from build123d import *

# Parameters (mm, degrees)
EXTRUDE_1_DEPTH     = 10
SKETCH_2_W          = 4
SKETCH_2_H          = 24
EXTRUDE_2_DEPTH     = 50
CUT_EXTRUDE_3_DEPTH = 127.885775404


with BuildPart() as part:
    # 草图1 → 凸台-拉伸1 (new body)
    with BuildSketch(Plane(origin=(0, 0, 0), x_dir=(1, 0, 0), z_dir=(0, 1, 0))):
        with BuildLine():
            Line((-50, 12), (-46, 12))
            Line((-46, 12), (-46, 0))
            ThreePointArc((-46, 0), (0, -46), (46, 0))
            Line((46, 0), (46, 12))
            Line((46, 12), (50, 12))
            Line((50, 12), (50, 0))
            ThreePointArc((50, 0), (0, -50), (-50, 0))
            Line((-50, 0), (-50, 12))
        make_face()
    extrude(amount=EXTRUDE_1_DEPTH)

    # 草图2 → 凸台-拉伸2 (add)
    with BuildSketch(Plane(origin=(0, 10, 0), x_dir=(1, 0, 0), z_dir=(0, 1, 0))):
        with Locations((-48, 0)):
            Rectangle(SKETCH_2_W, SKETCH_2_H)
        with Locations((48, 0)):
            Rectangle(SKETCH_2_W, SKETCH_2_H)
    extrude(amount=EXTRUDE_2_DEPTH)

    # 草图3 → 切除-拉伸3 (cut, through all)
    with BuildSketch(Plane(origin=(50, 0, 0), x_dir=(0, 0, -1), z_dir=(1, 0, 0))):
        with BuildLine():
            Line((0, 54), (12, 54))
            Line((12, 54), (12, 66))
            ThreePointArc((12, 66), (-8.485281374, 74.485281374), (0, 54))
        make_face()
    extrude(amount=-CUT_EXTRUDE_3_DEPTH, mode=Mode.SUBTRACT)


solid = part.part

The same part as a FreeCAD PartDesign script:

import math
import FreeCAD as App
import Part
import Sketcher
from FreeCAD import Vector

doc = App.newDocument("Part")
params = doc.addObject("Spreadsheet::Sheet", "Params")
for row, (alias, value) in enumerate([
    ("sketch1_radius", "50 mm"),
    ("sketch1_radius2", "46 mm"),
    ("sketch1_height", "12 mm"),
    ("pad1_length", "10 mm"),
    ("sketch2_width", "4 mm"),
    ("sketch2_height", "24 mm"),
    ("pad2_length", "50 mm"),
    ("sketch3_radius", "12 mm"),
], start=1):
    params.set(f"A{row}", alias)
    params.set(f"B{row}", "=" + value)
    params.setAlias(f"B{row}", alias)

body = doc.addObject("PartDesign::Body", "Body")

sketch1 = body.newObject("Sketcher::SketchObject", "Sketch")
sketch1.AttachmentSupport = (doc.getObject("XZ_Plane"), [""])
sketch1.MapMode = "FlatFace"
sketch1.addGeometry([
    Part.LineSegment(Vector(-46, -12, 0), Vector(-50, -12, 0)),
    Part.LineSegment(Vector(-50, -12, 0), Vector(-50, 0, 0)),
    Part.ArcOfCircle(Part.Circle(Vector(0, 0, 0), Vector(0, 0, 1), 50), math.radians(0), math.radians(180)),
    Part.LineSegment(Vector(50, 0, 0), Vector(50, -12, 0)),
    Part.LineSegment(Vector(50, -12, 0), Vector(46, -12, 0)),
    Part.LineSegment(Vector(46, -12, 0), Vector(46, 0, 0)),
    Part.ArcOfCircle(Part.Circle(Vector(0, 0, 0), Vector(0, 0, 1), 46), math.radians(0), math.radians(180)),
    Part.LineSegment(Vector(-46, 0, 0), Vector(-46, -12, 0)),
], False)
sketch1.addConstraint([
    Sketcher.Constraint("Coincident", 0, 2, 1, 1),
    Sketcher.Constraint("Tangent", 1, 2, 2, 2),
    Sketcher.Constraint("Tangent", 2, 1, 3, 1),
    Sketcher.Constraint("Coincident", 3, 2, 4, 1),
    Sketcher.Constraint("Coincident", 4, 2, 5, 1),
    Sketcher.Constraint("Tangent", 5, 2, 6, 1),
    Sketcher.Constraint("Tangent", 6, 2, 7, 1),
    Sketcher.Constraint("Coincident", 7, 2, 0, 1),
    Sketcher.Constraint("Horizontal", 0),
    Sketcher.Constraint("Vertical", 1),
    Sketcher.Constraint("Vertical", 3),
    Sketcher.Constraint("Horizontal", 4),
    Sketcher.Constraint("Vertical", 5),
    Sketcher.Constraint("Vertical", 7),
    Sketcher.Constraint("Coincident", 2, 3, -1, 1),
    Sketcher.Constraint("Coincident", 6, 3, -1, 1),
    Sketcher.Constraint("Horizontal", 0, 2, 3, 2),
    Sketcher.Constraint("Radius", 2, 50.0),
    Sketcher.Constraint("Radius", 6, 46.0),
    Sketcher.Constraint("DistanceY", 1, 1, 1, 2, 12.0),
])
sketch1.setExpression("Constraints[17]", "Params.sketch1_radius")
sketch1.setExpression("Constraints[18]", "Params.sketch1_radius2")
sketch1.setExpression("Constraints[19]", "Params.sketch1_height")
pad1 = body.newObject("PartDesign::Pad", "Pad")
pad1.Profile = sketch1
pad1.setExpression("Length", "Params.pad1_length")
pad1.Reversed = True

sketch2 = body.newObject("Sketcher::SketchObject", "Sketch001")
sketch2.AttachmentSupport = (doc.getObject("XZ_Plane"), [""])
sketch2.MapMode = "FlatFace"
sketch2.AttachmentOffset = App.Placement(Vector(0, 0, -10), App.Rotation())
sketch2.addGeometry([
    Part.LineSegment(Vector(-50, -12, 0), Vector(-50, 12, 0)),
    Part.LineSegment(Vector(-50, 12, 0), Vector(-46, 12, 0)),
    Part.LineSegment(Vector(-46, 12, 0), Vector(-46, -12, 0)),
    Part.LineSegment(Vector(-46, -12, 0), Vector(-50, -12, 0)),
    Part.LineSegment(Vector(46, -12, 0), Vector(46, 12, 0)),
    Part.LineSegment(Vector(46, 12, 0), Vector(50, 12, 0)),
    Part.LineSegment(Vector(50, 12, 0), Vector(50, -12, 0)),
    Part.LineSegment(Vector(50, -12, 0), Vector(46, -12, 0)),
], False)
sketch2.addConstraint([
    Sketcher.Constraint("Coincident", 0, 2, 1, 1),
    Sketcher.Constraint("Coincident", 1, 2, 2, 1),
    Sketcher.Constraint("Coincident", 2, 2, 3, 1),
    Sketcher.Constraint("Coincident", 3, 2, 0, 1),
    Sketcher.Constraint("Coincident", 4, 2, 5, 1),
    Sketcher.Constraint("Coincident", 5, 2, 6, 1),
    Sketcher.Constraint("Coincident", 6, 2, 7, 1),
    Sketcher.Constraint("Coincident", 7, 2, 4, 1),
    Sketcher.Constraint("Vertical", 0),
    Sketcher.Constraint("Horizontal", 1),
    Sketcher.Constraint("Vertical", 2),
    Sketcher.Constraint("Horizontal", 3),
    Sketcher.Constraint("Vertical", 4),
    Sketcher.Constraint("Horizontal", 5),
    Sketcher.Constraint("Vertical", 6),
    Sketcher.Constraint("Horizontal", 7),
    Sketcher.Constraint("Symmetric", 2, 2, 4, 2, -1, 1),
    Sketcher.Constraint("Symmetric", 0, 2, 6, 2, -1, 1),
    Sketcher.Constraint("Horizontal", 1, 2, 4, 2),
    Sketcher.Constraint("DistanceX", 1, 1, 1, 2, 4.0),
    Sketcher.Constraint("DistanceY", 0, 1, 0, 2, 24.0),
    Sketcher.Constraint("DistanceX", 0, 2, -1, 1, 50.0),
])
sketch2.setExpression("Constraints[19]", "Params.sketch2_width")
sketch2.setExpression("Constraints[20]", "Params.sketch2_height")
pad2 = body.newObject("PartDesign::Pad", "Pad001")
pad2.Profile = sketch2
pad2.setExpression("Length", "Params.pad2_length")
pad2.Reversed = True

sketch3 = body.newObject("Sketcher::SketchObject", "Sketch002")
sketch3.AttachmentSupport = (doc.getObject("YZ_Plane"), [""])
sketch3.MapMode = "FlatFace"
sketch3.AttachmentOffset = App.Placement(Vector(0, 0, 50), App.Rotation())
sketch3.addGeometry([
    Part.LineSegment(Vector(54, 0, 0), Vector(54, -12, 0)),
    Part.LineSegment(Vector(54, -12, 0), Vector(66, -12, 0)),
    Part.ArcOfCircle(Part.Circle(Vector(66, 0, 0), Vector(0, 0, 1), 12), math.radians(-90), math.radians(180)),
], False)
sketch3.addConstraint([
    Sketcher.Constraint("Coincident", 0, 2, 1, 1),
    Sketcher.Constraint("Tangent", 1, 2, 2, 1),
    Sketcher.Constraint("Tangent", 2, 2, 0, 1),
    Sketcher.Constraint("Vertical", 0),
    Sketcher.Constraint("Horizontal", 1),
    Sketcher.Constraint("PointOnObject", 2, 3, -1),
    Sketcher.Constraint("Radius", 2, 12.0),
    Sketcher.Constraint("DistanceX", -1, 1, 2, 3, 66.0),
])
sketch3.setExpression("Constraints[6]", "Params.sketch3_radius")
pocket1 = body.newObject("PartDesign::Pocket", "Pocket")
pocket1.Profile = sketch3
pocket1.Type = "ThroughAll"

doc.recompute()
